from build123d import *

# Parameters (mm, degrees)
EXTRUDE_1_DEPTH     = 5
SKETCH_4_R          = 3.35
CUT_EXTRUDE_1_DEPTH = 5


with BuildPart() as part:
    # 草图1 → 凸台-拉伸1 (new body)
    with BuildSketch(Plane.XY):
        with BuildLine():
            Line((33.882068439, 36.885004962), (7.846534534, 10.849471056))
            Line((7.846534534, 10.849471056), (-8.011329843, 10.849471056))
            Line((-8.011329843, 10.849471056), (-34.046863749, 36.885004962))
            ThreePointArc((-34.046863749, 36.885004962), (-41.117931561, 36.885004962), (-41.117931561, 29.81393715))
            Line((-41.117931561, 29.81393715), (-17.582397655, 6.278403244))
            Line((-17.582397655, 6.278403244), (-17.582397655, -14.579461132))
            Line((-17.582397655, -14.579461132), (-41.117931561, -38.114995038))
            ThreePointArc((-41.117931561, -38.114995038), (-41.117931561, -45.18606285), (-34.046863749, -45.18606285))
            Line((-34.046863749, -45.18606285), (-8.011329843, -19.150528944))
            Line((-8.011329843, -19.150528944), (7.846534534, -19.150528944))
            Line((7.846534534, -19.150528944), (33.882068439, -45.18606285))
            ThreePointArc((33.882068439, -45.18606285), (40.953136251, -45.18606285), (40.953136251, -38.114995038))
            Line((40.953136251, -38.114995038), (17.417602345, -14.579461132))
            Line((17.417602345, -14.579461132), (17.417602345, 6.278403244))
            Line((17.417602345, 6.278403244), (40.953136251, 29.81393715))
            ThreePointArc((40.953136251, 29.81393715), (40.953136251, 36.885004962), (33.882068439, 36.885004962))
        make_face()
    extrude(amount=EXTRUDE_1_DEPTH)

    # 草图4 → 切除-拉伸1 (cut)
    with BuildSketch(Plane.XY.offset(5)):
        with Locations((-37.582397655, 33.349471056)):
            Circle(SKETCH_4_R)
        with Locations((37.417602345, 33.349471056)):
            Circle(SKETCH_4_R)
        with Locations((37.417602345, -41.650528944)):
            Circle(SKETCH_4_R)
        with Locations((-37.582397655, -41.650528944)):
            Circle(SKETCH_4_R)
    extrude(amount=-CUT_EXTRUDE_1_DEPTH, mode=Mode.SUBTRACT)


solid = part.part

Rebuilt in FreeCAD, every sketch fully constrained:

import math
import FreeCAD as App
import Part
import Sketcher

V = App.Vector

doc = App.newDocument("Part")
body = doc.addObject("PartDesign::Body", "Body")

# Sketch on XY plane
sketch1 = body.newObject("Sketcher::SketchObject", "Sketch")
sketch1.AttachmentSupport = (doc.getObject("XY_Plane"), [""])
sketch1.MapMode = "FlatFace"
sketch1.addGeometry(Part.LineSegment(V(34, 37, 0), V(8, 11, 0)), False)
sketch1.addGeometry(Part.LineSegment(V(8, 11, 0), V(-8, 11, 0)), False)
sketch1.addGeometry(Part.LineSegment(V(-8, 11, 0), V(-34, 37, 0)), False)
sketch1.addGeometry(Part.ArcOfCircle(Part.Circle(V(-38, 33, 0), V(0, 0, 1), 5), math.radians(45), math.radians(225)), False)
sketch1.addGeometry(Part.LineSegment(V(-41, 30, 0), V(-18, 6, 0)), False)
sketch1.addGeometry(Part.LineSegment(V(-18, 6, 0), V(-18, -15, 0)), False)
sketch1.addGeometry(Part.LineSegment(V(-18, -15, 0), V(-41, -38, 0)), False)
sketch1.addGeometry(Part.ArcOfCircle(Part.Circle(V(-38, -42, 0), V(0, 0, 1), 5), math.radians(135), math.radians(315)), False)
sketch1.addGeometry(Part.LineSegment(V(-34, -45, 0), V(-8, -19, 0)), False)
sketch1.addGeometry(Part.LineSegment(V(-8, -19, 0), V(8, -19, 0)), False)
sketch1.addGeometry(Part.LineSegment(V(8, -19, 0), V(34, -45, 0)), False)
sketch1.addGeometry(Part.ArcOfCircle(Part.Circle(V(37, -42, 0), V(0, 0, 1), 5), math.radians(-135), math.radians(45)), False)
sketch1.addGeometry(Part.LineSegment(V(41, -38, 0), V(17, -15, 0)), False)
sketch1.addGeometry(Part.LineSegment(V(17, -15, 0), V(17, 6, 0)), False)
sketch1.addGeometry(Part.LineSegment(V(17, 6, 0), V(41, 30, 0)), False)
sketch1.addGeometry(Part.ArcOfCircle(Part.Circle(V(37, 33, 0), V(0, 0, 1), 5), math.radians(-45), math.radians(135)), False)
sketch1.addConstraint(Sketcher.Constraint("Coincident", 0, 2, 1, 1))
sketch1.addConstraint(Sketcher.Constraint("Coincident", 1, 2, 2, 1))
sketch1.addConstraint(Sketcher.Constraint("Tangent", 2, 2, 3, 1))
sketch1.addConstraint(Sketcher.Constraint("Tangent", 3, 2, 4, 1))
sketch1.addConstraint(Sketcher.Constraint("Coincident", 4, 2, 5, 1))
sketch1.addConstraint(Sketcher.Constraint("Coincident", 5, 2, 6, 1))
sketch1.addConstraint(Sketcher.Constraint("Tangent", 6, 2, 7, 1))
sketch1.addConstraint(Sketcher.Constraint("Tangent", 7, 2, 8, 1))
sketch1.addConstraint(Sketcher.Constraint("Coincident", 8, 2, 9, 1))
sketch1.addConstraint(Sketcher.Constraint("Coincident", 9, 2, 10, 1))
sketch1.addConstraint(Sketcher.Constraint("Tangent", 10, 2, 11, 1))
sketch1.addConstraint(Sketcher.Constraint("Tangent", 11, 2, 12, 1))
sketch1.addConstraint(Sketcher.Constraint("Coincident", 12, 2, 13, 1))
sketch1.addConstraint(Sketcher.Constraint("Coincident", 13, 2, 14, 1))
sketch1.addConstraint(Sketcher.Constraint("Tangent", 14, 2, 15, 1))
sketch1.addConstraint(Sketcher.Constraint("Tangent", 15, 2, 0, 1))
sketch1.addConstraint(Sketcher.Constraint("Horizontal", 1))
sketch1.addConstraint(Sketcher.Constraint("Vertical", 5))
sketch1.addConstraint(Sketcher.Constraint("Horizontal", 9))
sketch1.addConstraint(Sketcher.Constraint("Vertical", 13))
sketch1.addConstraint(Sketcher.Constraint("Equal", 3, 7))
sketch1.addConstraint(Sketcher.Constraint("Equal", 7, 11))
sketch1.addConstraint(Sketcher.Constraint("Equal", 11, 15))
sketch1.addConstraint(Sketcher.Constraint("Perpendicular", 0, 2))
sketch1.addConstraint(Sketcher.Constraint("Parallel", 2, 4))
sketch1.addConstraint(Sketcher.Constraint("Perpendicular", 4, 6))
sketch1.addConstraint(Sketcher.Constraint("Parallel", 6, 8))
sketch1.addConstraint(Sketcher.Constraint("Perpendicular", 8, 10))
sketch1.addConstraint(Sketcher.Constraint("Parallel", 10, 12))
sketch1.addConstraint(Sketcher.Constraint("Perpendicular", 12, 14))
sketch1.addConstraint(Sketcher.Constraint("Horizontal", 7, 3, 11, 3))
sketch1.addConstraint(Sketcher.Constraint("Horizontal", 3, 3, 15, 3))
sketch1.addConstraint(Sketcher.Constraint("Horizontal", 7, 2, 10, 2))
sketch1.addConstraint(Sketcher.Constraint("Horizontal", 5, 2, 12, 2))
sketch1.addConstraint(Sketcher.Constraint("Horizontal", 4, 2, 13, 2))
sketch1.addConstraint(Sketcher.Constraint("Vertical", 3, 3, 7, 3))
sketch1.addConstraint(Sketcher.Constraint("Vertical", 1, 2, 8, 2))
sketch1.addConstraint(Sketcher.Constraint("Radius", 3, 5.0))
sketch1.addConstraint(Sketcher.Constraint("DistanceY", 7, 3, 3, 3, 75.0))
sketch1.addConstraint(Sketcher.Constraint("DistanceX", 7, 3, 11, 3, 75.0))
sketch1.addConstraint(Sketcher.Constraint("DistanceX", 3, 3, 4, 2, 20.0))
sketch1.addConstraint(Sketcher.Constraint("DistanceY", 8, 2, 1, 2, 30.0))
sketch1.addConstraint(Sketcher.Constraint("DistanceY", -1, 1, 3, 3, 33.349471))
sketch1.addConstraint(Sketcher.Constraint("DistanceX", 1, 2, -1, 1, 8.01133))
pad1 = body.newObject("PartDesign::Pad", "Pad")
pad1.Profile = sketch1
pad1.Length = 5

# Sketch on XY plane
sketch2 = body.newObject("Sketcher::SketchObject", "Sketch001")
sketch2.AttachmentSupport = (doc.getObject("XY_Plane"), [""])
sketch2.MapMode = "FlatFace"
sketch2.AttachmentOffset = App.Placement(V(0, 0, 5), App.Rotation())
sketch2.addGeometry(Part.Circle(V(-37.6, 33.3, 0), V(0, 0, 1), 3.4), False)
sketch2.addGeometry(Part.Circle(V(37.4, 33.3, 0), V(0, 0, 1), 3.4), False)
sketch2.addGeometry(Part.Circle(V(37.4, -41.7, 0), V(0, 0, 1), 3.4), False)
sketch2.addGeometry(Part.Circle(V(-37.6, -41.7, 0), V(0, 0, 1), 3.4), False)
sketch2.addConstraint(Sketcher.Constraint("Equal", 0, 1))
sketch2.addConstraint(Sketcher.Constraint("Equal", 1, 2))
sketch2.addConstraint(Sketcher.Constraint("Equal", 2, 3))
sketch2.addConstraint(Sketcher.Constraint("Horizontal", 0, 3, 1, 3))
sketch2.addConstraint(Sketcher.Constraint("Horizontal", 2, 3, 3, 3))
sketch2.addConstraint(Sketcher.Constraint("Vertical", 1, 3, 2, 3))
sketch2.addConstraint(Sketcher.Constraint("Vertical", 0, 3, 3, 3))
sketch2.addConstraint(Sketcher.Constraint("Diameter", 0, 6.7))
sketch2.addConstraint(Sketcher.Constraint("DistanceX", 0, 3, 1, 3, 75.0))
sketch2.addConstraint(Sketcher.Constraint("DistanceY", 2, 3, 1, 3, 75.0))
sketch2.addConstraint(Sketcher.Constraint("DistanceY", -1, 1, 0, 3, 33.349471))
sketch2.addConstraint(Sketcher.Constraint("DistanceX", 0, 3, -1, 1, 37.582398))
pocket1 = body.newObject("PartDesign::Pocket", "Pocket")
pocket1.Profile = sketch2
pocket1.Length = 5

doc.recompute()
